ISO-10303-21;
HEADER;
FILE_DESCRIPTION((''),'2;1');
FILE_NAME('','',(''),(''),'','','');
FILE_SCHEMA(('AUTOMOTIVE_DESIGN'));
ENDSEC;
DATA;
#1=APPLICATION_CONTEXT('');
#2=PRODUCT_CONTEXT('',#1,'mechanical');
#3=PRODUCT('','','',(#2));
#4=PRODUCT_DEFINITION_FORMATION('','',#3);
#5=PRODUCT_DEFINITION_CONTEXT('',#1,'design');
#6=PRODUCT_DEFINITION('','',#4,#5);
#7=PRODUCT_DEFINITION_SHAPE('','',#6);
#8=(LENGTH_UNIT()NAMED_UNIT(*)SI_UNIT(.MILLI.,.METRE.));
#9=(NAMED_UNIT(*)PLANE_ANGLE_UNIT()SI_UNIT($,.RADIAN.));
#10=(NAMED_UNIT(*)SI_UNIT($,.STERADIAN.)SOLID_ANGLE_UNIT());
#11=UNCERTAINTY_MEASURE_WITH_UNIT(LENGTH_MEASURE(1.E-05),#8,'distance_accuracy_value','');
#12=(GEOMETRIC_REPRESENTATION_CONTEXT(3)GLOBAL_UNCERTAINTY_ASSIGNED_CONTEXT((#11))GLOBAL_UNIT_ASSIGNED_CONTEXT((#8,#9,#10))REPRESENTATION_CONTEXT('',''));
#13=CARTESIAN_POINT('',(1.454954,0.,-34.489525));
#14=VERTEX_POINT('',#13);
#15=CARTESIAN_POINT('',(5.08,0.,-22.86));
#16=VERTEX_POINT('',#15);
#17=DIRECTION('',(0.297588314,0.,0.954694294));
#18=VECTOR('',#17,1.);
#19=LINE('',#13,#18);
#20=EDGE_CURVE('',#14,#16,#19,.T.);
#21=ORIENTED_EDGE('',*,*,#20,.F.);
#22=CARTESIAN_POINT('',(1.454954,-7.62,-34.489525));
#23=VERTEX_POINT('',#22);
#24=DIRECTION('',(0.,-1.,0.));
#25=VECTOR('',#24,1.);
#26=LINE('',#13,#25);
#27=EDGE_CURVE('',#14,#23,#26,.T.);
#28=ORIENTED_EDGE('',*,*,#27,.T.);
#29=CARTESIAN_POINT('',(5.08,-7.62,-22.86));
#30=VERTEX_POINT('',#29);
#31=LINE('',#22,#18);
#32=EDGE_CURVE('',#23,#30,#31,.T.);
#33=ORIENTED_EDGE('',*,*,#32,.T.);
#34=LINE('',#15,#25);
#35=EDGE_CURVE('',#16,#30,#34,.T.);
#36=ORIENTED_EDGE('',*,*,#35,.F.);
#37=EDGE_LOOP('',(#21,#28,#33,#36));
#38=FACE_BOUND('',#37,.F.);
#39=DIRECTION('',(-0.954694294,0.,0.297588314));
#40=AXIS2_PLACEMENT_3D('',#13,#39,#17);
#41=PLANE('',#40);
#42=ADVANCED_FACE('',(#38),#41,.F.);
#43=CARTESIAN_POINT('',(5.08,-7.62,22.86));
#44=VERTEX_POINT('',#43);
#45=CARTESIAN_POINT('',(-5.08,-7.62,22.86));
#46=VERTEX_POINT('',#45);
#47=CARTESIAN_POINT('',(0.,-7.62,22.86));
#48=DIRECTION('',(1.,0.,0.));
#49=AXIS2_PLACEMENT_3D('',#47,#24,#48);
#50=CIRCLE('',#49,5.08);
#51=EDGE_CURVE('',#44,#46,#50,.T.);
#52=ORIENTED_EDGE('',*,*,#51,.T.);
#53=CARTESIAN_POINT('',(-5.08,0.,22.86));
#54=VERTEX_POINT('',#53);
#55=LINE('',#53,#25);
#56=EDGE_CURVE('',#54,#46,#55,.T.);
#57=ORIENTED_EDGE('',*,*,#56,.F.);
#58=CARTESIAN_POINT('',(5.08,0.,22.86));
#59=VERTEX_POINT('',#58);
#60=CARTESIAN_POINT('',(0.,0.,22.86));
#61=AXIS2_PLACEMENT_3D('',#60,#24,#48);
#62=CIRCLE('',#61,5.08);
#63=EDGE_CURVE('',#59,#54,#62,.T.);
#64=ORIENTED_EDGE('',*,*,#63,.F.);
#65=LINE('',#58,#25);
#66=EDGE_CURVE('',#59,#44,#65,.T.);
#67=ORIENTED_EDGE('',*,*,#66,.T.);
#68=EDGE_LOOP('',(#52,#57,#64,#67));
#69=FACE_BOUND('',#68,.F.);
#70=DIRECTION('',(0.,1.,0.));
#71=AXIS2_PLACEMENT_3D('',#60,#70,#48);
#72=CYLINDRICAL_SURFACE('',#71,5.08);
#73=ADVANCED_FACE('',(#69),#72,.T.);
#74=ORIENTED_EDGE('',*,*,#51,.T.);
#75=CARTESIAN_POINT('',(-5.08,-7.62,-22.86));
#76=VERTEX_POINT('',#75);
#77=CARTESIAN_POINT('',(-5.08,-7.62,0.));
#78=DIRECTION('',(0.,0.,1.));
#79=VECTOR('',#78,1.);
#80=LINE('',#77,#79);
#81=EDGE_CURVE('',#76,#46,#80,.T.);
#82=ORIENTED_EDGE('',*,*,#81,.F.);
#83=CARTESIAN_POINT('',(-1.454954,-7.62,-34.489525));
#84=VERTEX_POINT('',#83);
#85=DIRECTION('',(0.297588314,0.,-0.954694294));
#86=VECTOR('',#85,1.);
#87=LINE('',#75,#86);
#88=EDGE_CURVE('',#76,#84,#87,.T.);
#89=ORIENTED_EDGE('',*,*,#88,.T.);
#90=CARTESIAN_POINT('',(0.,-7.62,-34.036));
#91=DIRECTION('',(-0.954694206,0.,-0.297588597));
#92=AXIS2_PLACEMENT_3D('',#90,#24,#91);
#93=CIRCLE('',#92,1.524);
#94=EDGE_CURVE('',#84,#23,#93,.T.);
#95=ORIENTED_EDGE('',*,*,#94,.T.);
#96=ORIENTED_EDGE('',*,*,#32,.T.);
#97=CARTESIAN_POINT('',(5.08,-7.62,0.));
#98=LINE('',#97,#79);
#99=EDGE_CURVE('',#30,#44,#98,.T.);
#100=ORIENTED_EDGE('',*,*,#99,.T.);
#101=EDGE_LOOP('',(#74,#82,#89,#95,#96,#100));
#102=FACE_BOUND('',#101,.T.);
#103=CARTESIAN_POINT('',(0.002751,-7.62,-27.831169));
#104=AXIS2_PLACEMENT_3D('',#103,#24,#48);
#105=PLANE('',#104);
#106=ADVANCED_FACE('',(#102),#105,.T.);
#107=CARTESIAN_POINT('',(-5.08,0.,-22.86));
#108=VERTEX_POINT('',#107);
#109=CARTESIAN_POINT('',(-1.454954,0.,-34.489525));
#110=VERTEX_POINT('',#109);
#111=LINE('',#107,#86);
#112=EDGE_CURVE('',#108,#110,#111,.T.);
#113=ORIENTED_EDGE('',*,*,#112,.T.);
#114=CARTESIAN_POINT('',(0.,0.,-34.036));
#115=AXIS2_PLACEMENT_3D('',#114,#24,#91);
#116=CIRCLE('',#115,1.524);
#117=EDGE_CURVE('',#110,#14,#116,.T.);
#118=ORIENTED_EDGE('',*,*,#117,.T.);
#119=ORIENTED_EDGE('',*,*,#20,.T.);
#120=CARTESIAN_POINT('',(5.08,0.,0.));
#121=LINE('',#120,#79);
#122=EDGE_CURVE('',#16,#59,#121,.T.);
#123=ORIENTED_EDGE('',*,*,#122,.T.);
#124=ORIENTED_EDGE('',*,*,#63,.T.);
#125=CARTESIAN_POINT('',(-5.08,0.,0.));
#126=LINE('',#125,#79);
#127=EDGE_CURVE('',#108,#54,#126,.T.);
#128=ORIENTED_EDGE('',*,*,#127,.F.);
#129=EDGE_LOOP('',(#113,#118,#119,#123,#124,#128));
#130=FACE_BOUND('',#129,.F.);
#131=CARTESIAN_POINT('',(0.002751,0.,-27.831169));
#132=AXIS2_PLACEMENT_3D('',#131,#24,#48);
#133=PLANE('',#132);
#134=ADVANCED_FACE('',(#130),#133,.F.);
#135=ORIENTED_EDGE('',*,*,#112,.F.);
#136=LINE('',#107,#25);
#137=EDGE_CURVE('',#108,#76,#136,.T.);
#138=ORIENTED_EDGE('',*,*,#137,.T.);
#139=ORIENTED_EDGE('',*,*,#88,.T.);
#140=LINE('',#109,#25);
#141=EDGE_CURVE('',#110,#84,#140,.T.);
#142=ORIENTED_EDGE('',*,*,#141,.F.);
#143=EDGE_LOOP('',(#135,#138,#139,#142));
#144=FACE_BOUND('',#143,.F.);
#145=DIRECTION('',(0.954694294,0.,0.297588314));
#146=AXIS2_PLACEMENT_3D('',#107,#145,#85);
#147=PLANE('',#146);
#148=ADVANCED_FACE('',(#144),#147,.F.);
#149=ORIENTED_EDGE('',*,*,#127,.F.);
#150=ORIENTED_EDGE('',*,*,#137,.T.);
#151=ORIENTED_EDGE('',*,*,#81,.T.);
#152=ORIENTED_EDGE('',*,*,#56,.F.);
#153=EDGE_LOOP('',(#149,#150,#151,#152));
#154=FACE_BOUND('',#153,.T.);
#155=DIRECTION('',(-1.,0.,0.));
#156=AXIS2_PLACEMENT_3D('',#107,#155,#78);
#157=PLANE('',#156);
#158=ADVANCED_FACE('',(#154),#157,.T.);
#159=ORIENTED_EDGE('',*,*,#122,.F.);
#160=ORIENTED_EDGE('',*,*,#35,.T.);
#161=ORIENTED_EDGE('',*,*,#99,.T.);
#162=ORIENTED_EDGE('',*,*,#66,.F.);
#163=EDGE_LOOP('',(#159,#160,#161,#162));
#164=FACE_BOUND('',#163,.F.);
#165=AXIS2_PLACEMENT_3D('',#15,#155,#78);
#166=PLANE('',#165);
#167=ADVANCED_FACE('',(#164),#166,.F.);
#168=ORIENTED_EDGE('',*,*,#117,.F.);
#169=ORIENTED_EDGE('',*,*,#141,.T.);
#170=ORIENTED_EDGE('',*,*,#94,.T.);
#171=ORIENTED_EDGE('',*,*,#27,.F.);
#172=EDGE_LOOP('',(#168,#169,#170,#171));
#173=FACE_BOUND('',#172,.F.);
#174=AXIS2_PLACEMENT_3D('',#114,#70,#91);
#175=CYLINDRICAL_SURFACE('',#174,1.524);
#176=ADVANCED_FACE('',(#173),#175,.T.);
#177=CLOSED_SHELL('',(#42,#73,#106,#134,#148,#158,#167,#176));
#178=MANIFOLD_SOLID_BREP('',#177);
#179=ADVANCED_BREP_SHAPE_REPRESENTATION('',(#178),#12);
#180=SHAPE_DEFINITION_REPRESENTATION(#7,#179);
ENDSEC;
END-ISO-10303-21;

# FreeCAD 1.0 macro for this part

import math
import FreeCAD as App
import Part
import Sketcher
from FreeCAD import Vector
Q = App.Units.Quantity

doc = App.newDocument("Part")
body = doc.addObject("PartDesign::Body", "Body")

sketch1 = body.newObject("Sketcher::SketchObject", "Sketch")
sketch1.AttachmentSupport = (doc.getObject("XZ_Plane"), [""])
sketch1.MapMode = "FlatFace"
sketch1.addGeometry([
    Part.LineSegment(Vector(1.454954, -34.489525, 0), Vector(5.08, -22.86, 0)),
    Part.LineSegment(Vector(5.08, -22.86, 0), Vector(5.08, 22.86, 0)),
    Part.ArcOfCircle(Part.Circle(Vector(0, 22.86, 0), Vector(0, 0, 1), 5.08), math.radians(0), math.radians(180)),
    Part.LineSegment(Vector(-5.08, 22.86, 0), Vector(-5.08, -22.86, 0)),
    Part.LineSegment(Vector(-5.08, -22.86, 0), Vector(-1.454954, -34.489525, 0)),
    Part.ArcOfCircle(Part.Circle(Vector(0, -34.036, 0), Vector(0, 0, 1), 1.524), math.radians(-162.687174), math.radians(-17.312826)),
], False)
sketch1.addConstraint([
    Sketcher.Constraint("Coincident", 0, 2, 1, 1),
    Sketcher.Constraint("Tangent", 1, 2, 2, 1),
    Sketcher.Constraint("Tangent", 2, 2, 3, 1),
    Sketcher.Constraint("Coincident", 3, 2, 4, 1),
    Sketcher.Constraint("Tangent", 4, 2, 5, 1),
    Sketcher.Constraint("Tangent", 5, 2, 0, 1),
    Sketcher.Constraint("Vertical", 1),
    Sketcher.Constraint("Vertical", 3),
    Sketcher.Constraint("Symmetric", 0, 2, 2, 2, -1, 1),
    Sketcher.Constraint("Symmetric", 4, 2, 5, 2, -2),
    Sketcher.Constraint("Radius", 2, Q("0.2 in")),
    Sketcher.Constraint("Radius", 5, Q("0.06 in")),
    Sketcher.Constraint("DistanceY", 1, 1, 1, 2, Q("1.8 in")),
    Sketcher.Constraint("DistanceY", 5, 3, -1, 1, Q("1.34 in")),
])
pad1 = body.newObject("PartDesign::Pad", "Pad")
pad1.Profile = sketch1
pad1.Length = Q("0.3 in")

doc.recompute()
